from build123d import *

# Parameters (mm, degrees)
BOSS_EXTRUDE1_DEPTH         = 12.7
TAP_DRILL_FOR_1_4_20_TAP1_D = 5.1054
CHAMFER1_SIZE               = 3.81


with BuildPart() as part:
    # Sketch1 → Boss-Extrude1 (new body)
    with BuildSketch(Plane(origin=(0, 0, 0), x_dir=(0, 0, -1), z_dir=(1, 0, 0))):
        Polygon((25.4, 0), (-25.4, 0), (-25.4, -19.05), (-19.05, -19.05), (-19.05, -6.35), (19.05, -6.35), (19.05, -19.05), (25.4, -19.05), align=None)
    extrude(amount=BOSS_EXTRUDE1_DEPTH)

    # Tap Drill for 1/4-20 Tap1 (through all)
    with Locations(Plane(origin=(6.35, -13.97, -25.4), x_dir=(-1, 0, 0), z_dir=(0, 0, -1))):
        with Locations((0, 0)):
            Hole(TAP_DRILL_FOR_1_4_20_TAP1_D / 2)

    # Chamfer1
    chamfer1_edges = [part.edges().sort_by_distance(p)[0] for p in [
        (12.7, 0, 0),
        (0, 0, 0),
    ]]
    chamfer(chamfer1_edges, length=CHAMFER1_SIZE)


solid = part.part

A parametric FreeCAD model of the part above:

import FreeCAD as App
import Part
import Sketcher
Q = App.Units.Quantity


def edges_at(feature, points):
    """Names of the edges that pass closest to the given points."""
    edges = feature.Shape.Edges
    near = lambda p: min(range(len(edges)), key=lambda i: edges[i].distToShape(Part.Vertex(*p))[0])
    return sorted({f"Edge{near(p) + 1}" for p in points})

doc = App.newDocument("Part")
params = doc.addObject("Spreadsheet::Sheet", "Params")
for row, (alias, value) in enumerate([
    ("sketch1_height", "2 in"),
    ("sketch1_width", "0.5 in"),
    ("sketch1_height2", "1.5 in"),
    ("sketch1_width2", "0.75 in"),
    ("pad1_length", "0.5 in"),
    ("sketch2_diameter", "0.201 in"),
    ("hole_diameter", "0.201 in"),
    ("chamfer_size", "0.15 in"),
], start=1):
    params.set(f"A{row}", alias)
    params.set(f"B{row}", "=" + value)
    params.setAlias(f"B{row}", alias)

body = doc.addObject("PartDesign::Body", "Body")

# Sketch on YZ plane
sketch1 = body.newObject("Sketcher::SketchObject", "Sketch")
sketch1.AttachmentSupport = (doc.getObject("YZ_Plane"), [""])
sketch1.MapMode = "FlatFace"
sketch1.addGeometry(Part.LineSegment(App.Vector(0, -25, 0), App.Vector(0, 25, 0)), False)
sketch1.addGeometry(Part.LineSegment(App.Vector(0, 25, 0), App.Vector(-19, 25, 0)), False)
sketch1.addGeometry(Part.LineSegment(App.Vector(-19, 25, 0), App.Vector(-19, 19, 0)), False)
sketch1.addGeometry(Part.LineSegment(App.Vector(-19, 19, 0), App.Vector(-6, 19, 0)), False)
sketch1.addGeometry(Part.LineSegment(App.Vector(-6, 19, 0), App.Vector(-6, -19, 0)), False)
sketch1.addGeometry(Part.LineSegment(App.Vector(-6, -19, 0), App.Vector(-19, -19, 0)), False)
sketch1.addGeometry(Part.LineSegment(App.Vector(-19, -19, 0), App.Vector(-19, -25, 0)), False)
sketch1.addGeometry(Part.LineSegment(App.Vector(-19, -25, 0), App.Vector(0, -25, 0)), False)
sketch1.addConstraint(Sketcher.Constraint("Coincident", 0, 2, 1, 1))
sketch1.addConstraint(Sketcher.Constraint("Coincident", 1, 2, 2, 1))
sketch1.addConstraint(Sketcher.Constraint("Coincident", 2, 2, 3, 1))
sketch1.addConstraint(Sketcher.Constraint("Coincident", 3, 2, 4, 1))
sketch1.addConstraint(Sketcher.Constraint("Coincident", 4, 2, 5, 1))
sketch1.addConstraint(Sketcher.Constraint("Coincident", 5, 2, 6, 1))
sketch1.addConstraint(Sketcher.Constraint("Coincident", 6, 2, 7, 1))
sketch1.addConstraint(Sketcher.Constraint("Coincident", 7, 2, 0, 1))
sketch1.addConstraint(Sketcher.Constraint("Vertical", 0))
sketch1.addConstraint(Sketcher.Constraint("Horizontal", 1))
sketch1.addConstraint(Sketcher.Constraint("Vertical", 2))
sketch1.addConstraint(Sketcher.Constraint("Horizontal", 3))
sketch1.addConstraint(Sketcher.Constraint("Vertical", 4))
sketch1.addConstraint(Sketcher.Constraint("Horizontal", 5))
sketch1.addConstraint(Sketcher.Constraint("Vertical", 6))
sketch1.addConstraint(Sketcher.Constraint("Horizontal", 7))
sketch1.addConstraint(Sketcher.Constraint("Symmetric", 0, 2, 7, 2, -1, 1))
sketch1.addConstraint(Sketcher.Constraint("Symmetric", 2, 2, 5, 2, -1))
sketch1.addConstraint(Sketcher.Constraint("DistanceY", 0, 1, 0, 2, Q("2 in")))
sketch1.addConstraint(Sketcher.Constraint("DistanceX", 3, 1, 3, 2, Q("0.5 in")))
sketch1.addConstraint(Sketcher.Constraint("DistanceY", 4, 2, 4, 1, Q("1.5 in")))
sketch1.addConstraint(Sketcher.Constraint("DistanceX", 1, 2, 1, 1, Q("0.75 in")))
sketch1.setExpression("Constraints[18]", "Params.sketch1_height")
sketch1.setExpression("Constraints[19]", "Params.sketch1_width")
sketch1.setExpression("Constraints[20]", "Params.sketch1_height2")
sketch1.setExpression("Constraints[21]", "Params.sketch1_width2")
pad1 = body.newObject("PartDesign::Pad", "Pad")
pad1.Profile = sketch1
pad1.setExpression("Length", "Params.pad1_length")

# Sketch on XY plane
sketch2 = body.newObject("Sketcher::SketchObject", "Sketch001")
sketch2.AttachmentSupport = (doc.getObject("XY_Plane"), [""])
sketch2.MapMode = "FlatFace"
sketch2.AttachmentOffset = App.Placement(App.Vector(0, 0, -1 * 25.4), App.Rotation())
sketch2.addGeometry(Part.Circle(App.Vector(6.3, -14, 0), App.Vector(0, 0, 1), 2.6), False)
sketch2.addConstraint(Sketcher.Constraint("Diameter", 0, Q("0.201 in")))
sketch2.addConstraint(Sketcher.Constraint("DistanceX", -1, 1, 0, 3, Q("0.25 in")))
sketch2.addConstraint(Sketcher.Constraint("DistanceY", 0, 3, -1, 1, Q("0.55 in")))
sketch2.setExpression("Constraints[0]", "Params.sketch2_diameter")
doc.recompute()
hole = body.newObject("PartDesign::Hole", "Hole")
hole.Profile = sketch2
hole.ThreadType = "None"
hole.setExpression("Diameter", "Params.hole_diameter")
hole.DepthType = "ThroughAll"
hole.Reversed = True
doc.recompute()

chamfer = body.newObject("PartDesign::Chamfer", "Chamfer")
chamfer.Base = (hole, edges_at(hole, [(12.7, 0, 0), (0, 0, 0)]))
chamfer.setExpression("Size", "Params.chamfer_size")

doc.recompute()
